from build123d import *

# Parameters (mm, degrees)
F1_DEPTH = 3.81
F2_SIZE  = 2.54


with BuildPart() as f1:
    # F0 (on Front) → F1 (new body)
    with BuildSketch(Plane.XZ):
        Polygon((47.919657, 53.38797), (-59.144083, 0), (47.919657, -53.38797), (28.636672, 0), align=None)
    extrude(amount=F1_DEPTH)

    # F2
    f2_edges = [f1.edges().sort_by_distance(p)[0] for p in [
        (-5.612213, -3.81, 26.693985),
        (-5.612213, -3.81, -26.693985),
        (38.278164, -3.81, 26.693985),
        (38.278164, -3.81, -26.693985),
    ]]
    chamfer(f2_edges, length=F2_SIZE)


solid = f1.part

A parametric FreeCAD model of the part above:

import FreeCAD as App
import Part
import Sketcher

V = App.Vector
Q = App.Units.Quantity


def edges_at(feature, points):
    """Names of the edges that pass closest to the given points."""
    edges = feature.Shape.Edges
    near = lambda p: min(range(len(edges)), key=lambda i: edges[i].distToShape(Part.Vertex(*p))[0])
    return sorted({f"Edge{near(p) + 1}" for p in points})


def add_polygon(sketch, points):
    """Adds a closed chain of lines whose ends are joined by coincident constraints."""
    first, n = sketch.GeometryCount, len(points)
    for a, b in zip(points, points[1:] + points[:1]):
        sketch.addGeometry(Part.LineSegment(App.Vector(*a, 0), App.Vector(*b, 0)), False)
    for i in range(n):
        sketch.addConstraint(Sketcher.Constraint("Coincident", first + i, 2, first + (i + 1) % n, 1))

doc = App.newDocument("Part")
params = doc.addObject("Spreadsheet::Sheet", "Params")
for row, (alias, value) in enumerate([
    ("pad1_length", "0.15 in"),
    ("chamfer_size", "0.1 in"),
], start=1):
    params.set(f"A{row}", alias)
    params.set(f"B{row}", "=" + value)
    params.setAlias(f"B{row}", alias)

body = doc.addObject("PartDesign::Body", "Body")

# Sketch on XZ plane
sketch1 = body.newObject("Sketcher::SketchObject", "Sketch")
sketch1.AttachmentSupport = (doc.getObject("XZ_Plane"), [""])
sketch1.MapMode = "FlatFace"
add_polygon(sketch1, [(48, 53), (-59, 0), (48, -53), (29, 0)])  # lines 0-3
sketch1.addConstraint([
    Sketcher.Constraint("Symmetric", 1, 2, 3, 2, -1),
    Sketcher.Constraint("PointOnObject", 0, 2, -1),
    Sketcher.Constraint("PointOnObject", 2, 2, -1),
    Sketcher.Constraint("DistanceY", 1, 2, -1, 1, Q("53.38797 mm")),
    Sketcher.Constraint("DistanceX", 0, 2, 1, 2, Q("107.06374 mm")),
    Sketcher.Constraint("Distance", 2, Q("56.763623 mm")),
    Sketcher.Constraint("DistanceX", 0, 2, -1, 1, Q("59.144083 mm")),
])
pad1 = body.newObject("PartDesign::Pad", "Pad")
pad1.Profile = sketch1
pad1.setExpression("Length", "Params.pad1_length")
doc.recompute()

chamfer = body.newObject("PartDesign::Chamfer", "Chamfer")
chamfer.Base = (pad1, edges_at(pad1, [
    (-5.612, -3.81, 26.694),
    (-5.612, -3.81, -26.694),
    (38.278, -3.81, 26.694),
    (38.278, -3.81, -26.694),
]))
chamfer.setExpression("Size", "Params.chamfer_size")

doc.recompute()
